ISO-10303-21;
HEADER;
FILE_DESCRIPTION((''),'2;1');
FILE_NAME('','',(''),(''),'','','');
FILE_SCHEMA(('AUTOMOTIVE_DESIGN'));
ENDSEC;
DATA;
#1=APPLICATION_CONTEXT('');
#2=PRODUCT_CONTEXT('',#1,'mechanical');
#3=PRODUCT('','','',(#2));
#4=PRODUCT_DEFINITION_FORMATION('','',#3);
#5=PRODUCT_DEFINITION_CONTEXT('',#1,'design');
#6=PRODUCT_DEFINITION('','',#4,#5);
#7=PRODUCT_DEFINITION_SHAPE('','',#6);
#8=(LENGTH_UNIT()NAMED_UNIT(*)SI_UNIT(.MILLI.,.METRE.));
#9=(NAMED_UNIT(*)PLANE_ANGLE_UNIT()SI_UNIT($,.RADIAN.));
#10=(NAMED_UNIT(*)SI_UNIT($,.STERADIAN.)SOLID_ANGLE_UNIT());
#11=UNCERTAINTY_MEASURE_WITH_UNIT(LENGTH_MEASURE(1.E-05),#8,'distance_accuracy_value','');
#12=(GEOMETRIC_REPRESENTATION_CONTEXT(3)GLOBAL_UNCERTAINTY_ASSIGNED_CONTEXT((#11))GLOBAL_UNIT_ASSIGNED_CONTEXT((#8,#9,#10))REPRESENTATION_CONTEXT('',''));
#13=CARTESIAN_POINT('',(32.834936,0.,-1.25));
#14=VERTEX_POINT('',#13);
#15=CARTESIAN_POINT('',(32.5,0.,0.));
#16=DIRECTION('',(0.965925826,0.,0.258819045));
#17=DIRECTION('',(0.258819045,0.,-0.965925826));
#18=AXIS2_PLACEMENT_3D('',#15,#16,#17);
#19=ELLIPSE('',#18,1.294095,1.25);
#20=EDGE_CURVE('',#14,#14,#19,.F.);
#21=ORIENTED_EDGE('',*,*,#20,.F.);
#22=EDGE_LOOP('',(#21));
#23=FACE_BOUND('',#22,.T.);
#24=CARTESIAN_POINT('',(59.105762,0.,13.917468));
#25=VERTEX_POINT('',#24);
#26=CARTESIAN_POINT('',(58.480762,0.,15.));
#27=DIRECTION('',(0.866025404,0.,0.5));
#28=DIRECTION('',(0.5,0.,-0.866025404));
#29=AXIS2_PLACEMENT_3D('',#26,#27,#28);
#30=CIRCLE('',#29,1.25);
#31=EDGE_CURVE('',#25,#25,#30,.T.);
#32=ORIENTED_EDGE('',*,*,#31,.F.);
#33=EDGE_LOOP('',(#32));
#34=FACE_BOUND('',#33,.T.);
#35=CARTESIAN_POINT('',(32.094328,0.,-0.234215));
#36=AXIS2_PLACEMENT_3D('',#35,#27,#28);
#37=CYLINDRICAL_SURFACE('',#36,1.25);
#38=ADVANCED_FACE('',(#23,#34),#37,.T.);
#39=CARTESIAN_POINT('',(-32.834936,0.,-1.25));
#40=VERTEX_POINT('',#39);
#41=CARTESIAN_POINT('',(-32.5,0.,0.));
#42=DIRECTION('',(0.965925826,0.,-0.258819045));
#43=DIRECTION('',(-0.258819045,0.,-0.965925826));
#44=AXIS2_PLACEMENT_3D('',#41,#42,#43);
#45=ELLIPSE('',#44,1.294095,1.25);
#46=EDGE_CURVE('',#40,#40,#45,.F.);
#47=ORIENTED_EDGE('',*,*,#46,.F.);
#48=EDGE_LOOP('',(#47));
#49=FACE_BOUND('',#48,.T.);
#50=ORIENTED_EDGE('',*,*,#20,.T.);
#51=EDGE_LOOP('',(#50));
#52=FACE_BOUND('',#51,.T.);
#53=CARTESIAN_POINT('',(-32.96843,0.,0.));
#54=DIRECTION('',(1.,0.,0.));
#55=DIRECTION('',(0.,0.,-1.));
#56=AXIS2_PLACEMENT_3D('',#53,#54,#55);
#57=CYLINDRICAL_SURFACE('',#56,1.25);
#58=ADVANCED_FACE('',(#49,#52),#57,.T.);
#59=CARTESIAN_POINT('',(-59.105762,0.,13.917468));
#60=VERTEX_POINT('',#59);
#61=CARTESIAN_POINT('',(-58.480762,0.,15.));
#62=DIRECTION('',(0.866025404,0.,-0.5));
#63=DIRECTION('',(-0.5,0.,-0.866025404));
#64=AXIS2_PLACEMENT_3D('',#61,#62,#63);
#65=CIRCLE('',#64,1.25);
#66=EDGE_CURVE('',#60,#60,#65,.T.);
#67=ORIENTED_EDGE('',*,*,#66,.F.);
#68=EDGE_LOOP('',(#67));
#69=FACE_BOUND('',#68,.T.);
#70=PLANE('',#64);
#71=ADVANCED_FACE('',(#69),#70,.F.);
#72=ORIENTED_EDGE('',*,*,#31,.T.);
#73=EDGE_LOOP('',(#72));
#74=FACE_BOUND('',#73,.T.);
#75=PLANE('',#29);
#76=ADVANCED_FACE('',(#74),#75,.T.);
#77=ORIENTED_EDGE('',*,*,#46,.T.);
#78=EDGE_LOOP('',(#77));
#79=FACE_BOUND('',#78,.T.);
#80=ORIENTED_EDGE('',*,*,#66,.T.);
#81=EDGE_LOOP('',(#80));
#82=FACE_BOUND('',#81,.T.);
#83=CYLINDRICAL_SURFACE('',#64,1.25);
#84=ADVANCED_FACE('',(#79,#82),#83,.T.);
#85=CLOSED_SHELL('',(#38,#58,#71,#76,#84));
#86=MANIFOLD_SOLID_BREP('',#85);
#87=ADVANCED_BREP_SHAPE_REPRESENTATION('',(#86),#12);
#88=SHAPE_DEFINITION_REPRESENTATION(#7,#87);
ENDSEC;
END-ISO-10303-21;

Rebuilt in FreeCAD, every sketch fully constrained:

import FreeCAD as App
import Part
import Sketcher

V = App.Vector
Q = App.Units.Quantity

doc = App.newDocument("Part")
body = doc.addObject("PartDesign::Body", "Body")

# Sketch on an angled plane
sketch1 = body.newObject("Sketcher::SketchObject", "Sketch")
sketch1.Placement = App.Placement(V(58.480762, 0, 15), App.Rotation(V(0.5, 0, -0.866025404), V(0, -1, 0), V(-0.866025404, 0, -0.5), "ZXY"))
sketch1.addGeometry(Part.Circle(V(0, 0, 0), V(0, 0, 1), 1.25), False)
sketch1.addConstraint([
    Sketcher.Constraint("Coincident", 0, 3, -1, 1),
    Sketcher.Constraint("Diameter", 0, 2.5),
])

# Sketch on XZ plane
sketch2 = body.newObject("Sketcher::SketchObject", "Sketch001")
sketch2.AttachmentSupport = (doc.getObject("XZ_Plane"), [""])
sketch2.MapMode = "FlatFace"
sketch2.addGeometry([
    Part.LineSegment(V(58.480762, 15, 0), V(32.5, 0, 0)),
    Part.LineSegment(V(32.5, 0, 0), V(-32.5, 0, 0)),
    Part.LineSegment(V(-32.5, 0, 0), V(-58.480762, 15, 0)),
], False)
sketch2.addConstraint([
    Sketcher.Constraint("Coincident", 0, 2, 1, 1),
    Sketcher.Constraint("Coincident", 1, 2, 2, 1),
    Sketcher.Constraint("Horizontal", 1),
    Sketcher.Constraint("Symmetric", 0, 2, 1, 2, -1, 1),
    Sketcher.Constraint("Symmetric", 0, 1, 2, 2, -2),
    Sketcher.Constraint("DistanceX", 1, 2, 1, 1, 65.0),
    Sketcher.Constraint("Angle", 0, Q("-150 deg")),
    Sketcher.Constraint("Distance", 0, 30.0),
])
doc.recompute()

additivepipe = body.newObject("PartDesign::AdditivePipe", "AdditivePipe")
additivepipe.Profile = sketch1
additivepipe.Spine = (sketch2, ["Edge1", "Edge2", "Edge3"])
additivepipe.Transition = "Right corner"

doc.recompute()
